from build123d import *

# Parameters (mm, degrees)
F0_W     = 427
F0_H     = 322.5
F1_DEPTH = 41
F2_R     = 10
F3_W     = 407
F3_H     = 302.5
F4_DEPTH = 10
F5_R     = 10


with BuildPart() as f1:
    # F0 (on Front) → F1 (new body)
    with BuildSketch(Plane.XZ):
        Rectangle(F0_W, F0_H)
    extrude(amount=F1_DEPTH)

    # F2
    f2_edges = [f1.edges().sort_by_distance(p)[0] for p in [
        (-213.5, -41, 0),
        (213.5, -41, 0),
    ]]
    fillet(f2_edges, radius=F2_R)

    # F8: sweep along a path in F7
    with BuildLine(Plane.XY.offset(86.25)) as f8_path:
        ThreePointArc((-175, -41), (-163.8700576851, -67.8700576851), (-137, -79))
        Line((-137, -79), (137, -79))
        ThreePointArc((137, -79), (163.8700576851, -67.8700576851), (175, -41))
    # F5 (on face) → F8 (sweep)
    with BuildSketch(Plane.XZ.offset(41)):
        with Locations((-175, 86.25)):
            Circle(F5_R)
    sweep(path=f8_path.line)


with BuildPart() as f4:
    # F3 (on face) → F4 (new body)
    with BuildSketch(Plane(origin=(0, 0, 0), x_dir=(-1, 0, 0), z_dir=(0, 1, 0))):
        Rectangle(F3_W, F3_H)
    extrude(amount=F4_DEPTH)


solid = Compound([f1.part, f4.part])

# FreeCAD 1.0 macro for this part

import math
import FreeCAD as App
import Part
import Sketcher
from FreeCAD import Vector
Q = App.Units.Quantity


def edges_at(feature, points):
    """Names of the edges that pass closest to the given points."""
    edges = feature.Shape.Edges
    near = lambda p: min(range(len(edges)), key=lambda i: edges[i].distToShape(Part.Vertex(*p))[0])
    return sorted({f"Edge{near(p) + 1}" for p in points})


def add_polygon(sketch, points):
    """Adds a closed chain of lines whose ends are joined by coincident constraints."""
    first, n = sketch.GeometryCount, len(points)
    for a, b in zip(points, points[1:] + points[:1]):
        sketch.addGeometry(Part.LineSegment(App.Vector(*a, 0), App.Vector(*b, 0)), False)
    for i in range(n):
        sketch.addConstraint(Sketcher.Constraint("Coincident", first + i, 2, first + (i + 1) % n, 1))

doc = App.newDocument("Part")
body = doc.addObject("PartDesign::Body", "Body")

# Sketch on XZ plane
sketch1 = body.newObject("Sketcher::SketchObject", "Sketch")
sketch1.AttachmentSupport = (doc.getObject("XZ_Plane"), [""])
sketch1.MapMode = "FlatFace"
add_polygon(sketch1, [(-214, 161), (-214, -161), (214, -161), (214, 161)])  # lines 0-3
sketch1.addConstraint([
    Sketcher.Constraint("Vertical", 0),
    Sketcher.Constraint("Horizontal", 1),
    Sketcher.Constraint("Vertical", 2),
    Sketcher.Constraint("Horizontal", 3),
    Sketcher.Constraint("Symmetric", 0, 2, 2, 2, -1, 1),
    Sketcher.Constraint("DistanceX", 1, 1, 1, 2, Q("427 mm")),
    Sketcher.Constraint("DistanceY", 0, 2, 0, 1, Q("322.5 mm")),
])
pad1 = body.newObject("PartDesign::Pad", "Pad")
pad1.Profile = sketch1
pad1.Length = 41
doc.recompute()

fillet = body.newObject("PartDesign::Fillet", "Fillet")
fillet.Base = (pad1, edges_at(pad1, [(-213.5, -41, 0), (213.5, -41, 0)]))
fillet.Radius = 10

# Sketch on XZ plane
sketch2 = body.newObject("Sketcher::SketchObject", "Sketch001")
sketch2.AttachmentSupport = (doc.getObject("XZ_Plane"), [""])
sketch2.MapMode = "FlatFace"
sketch2.AttachmentOffset = App.Placement(Vector(0, 0, 41), App.Rotation())
sketch2.addGeometry(Part.Circle(Vector(-175, 86, 0), Vector(0, 0, 1), 10), False)
sketch2.addConstraint([
    Sketcher.Constraint("Diameter", 0, Q("20 mm")),
    Sketcher.Constraint("DistanceX", 0, 3, -1, 1, Q("175 mm")),
    Sketcher.Constraint("DistanceY", -1, 1, 0, 3, Q("86.25 mm")),
])

# Sketch on XY plane
sketch3 = body.newObject("Sketcher::SketchObject", "Sketch002")
sketch3.AttachmentSupport = (doc.getObject("XY_Plane"), [""])
sketch3.MapMode = "FlatFace"
sketch3.AttachmentOffset = App.Placement(Vector(0, 0, 86.25), App.Rotation())
sketch3.addGeometry([
    Part.ArcOfCircle(Part.Circle(Vector(-137, -41, 0), Vector(0, 0, 1), 38), math.radians(180), math.radians(270)),
    Part.LineSegment(Vector(-137, -79, 0), Vector(137, -79, 0)),
    Part.ArcOfCircle(Part.Circle(Vector(137, -41, 0), Vector(0, 0, 1), 38), math.radians(-90), math.radians(0)),
], False)
sketch3.addConstraint([
    Sketcher.Constraint("Tangent", 0, 2, 1, 1),
    Sketcher.Constraint("Tangent", 1, 2, 2, 1),
    Sketcher.Constraint("Horizontal", 1),
    Sketcher.Constraint("Equal", 0, 2),
    Sketcher.Constraint("Symmetric", 0, 1, 2, 2, -2),
    Sketcher.Constraint("Horizontal", 2, 3, 0, 1),
    Sketcher.Constraint("Radius", 0, Q("38 mm")),
    Sketcher.Constraint("DistanceX", 1, 1, 1, 2, Q("274 mm")),
    Sketcher.Constraint("DistanceY", 0, 3, -1, 1, Q("41 mm")),
])
doc.recompute()

additivepipe = body.newObject("PartDesign::AdditivePipe", "AdditivePipe")
additivepipe.Profile = sketch2
additivepipe.Spine = (sketch3, ["Edge1", "Edge2", "Edge3"])
body2 = doc.addObject("PartDesign::Body", "Body001")

# Sketch on XZ plane
sketch4 = body2.newObject("Sketcher::SketchObject", "Sketch003")
sketch4.AttachmentSupport = (doc.getObject("XZ_Plane001"), [""])
sketch4.MapMode = "FlatFace"
add_polygon(sketch4, [(204, 151), (204, -151), (-204, -151), (-204, 151)])  # lines 0-3
sketch4.addConstraint([
    Sketcher.Constraint("Vertical", 0),
    Sketcher.Constraint("Horizontal", 1),
    Sketcher.Constraint("Vertical", 2),
    Sketcher.Constraint("Horizontal", 3),
    Sketcher.Constraint("Symmetric", 0, 2, 2, 2, -1, 1),
    Sketcher.Constraint("DistanceX", 1, 2, 1, 1, Q("407 mm")),
    Sketcher.Constraint("DistanceY", 0, 2, 0, 1, Q("302.5 mm")),
])
pad2 = body2.newObject("PartDesign::Pad", "Pad001")
pad2.Profile = sketch4
pad2.Length = 10
pad2.Reversed = True

doc.recompute()
